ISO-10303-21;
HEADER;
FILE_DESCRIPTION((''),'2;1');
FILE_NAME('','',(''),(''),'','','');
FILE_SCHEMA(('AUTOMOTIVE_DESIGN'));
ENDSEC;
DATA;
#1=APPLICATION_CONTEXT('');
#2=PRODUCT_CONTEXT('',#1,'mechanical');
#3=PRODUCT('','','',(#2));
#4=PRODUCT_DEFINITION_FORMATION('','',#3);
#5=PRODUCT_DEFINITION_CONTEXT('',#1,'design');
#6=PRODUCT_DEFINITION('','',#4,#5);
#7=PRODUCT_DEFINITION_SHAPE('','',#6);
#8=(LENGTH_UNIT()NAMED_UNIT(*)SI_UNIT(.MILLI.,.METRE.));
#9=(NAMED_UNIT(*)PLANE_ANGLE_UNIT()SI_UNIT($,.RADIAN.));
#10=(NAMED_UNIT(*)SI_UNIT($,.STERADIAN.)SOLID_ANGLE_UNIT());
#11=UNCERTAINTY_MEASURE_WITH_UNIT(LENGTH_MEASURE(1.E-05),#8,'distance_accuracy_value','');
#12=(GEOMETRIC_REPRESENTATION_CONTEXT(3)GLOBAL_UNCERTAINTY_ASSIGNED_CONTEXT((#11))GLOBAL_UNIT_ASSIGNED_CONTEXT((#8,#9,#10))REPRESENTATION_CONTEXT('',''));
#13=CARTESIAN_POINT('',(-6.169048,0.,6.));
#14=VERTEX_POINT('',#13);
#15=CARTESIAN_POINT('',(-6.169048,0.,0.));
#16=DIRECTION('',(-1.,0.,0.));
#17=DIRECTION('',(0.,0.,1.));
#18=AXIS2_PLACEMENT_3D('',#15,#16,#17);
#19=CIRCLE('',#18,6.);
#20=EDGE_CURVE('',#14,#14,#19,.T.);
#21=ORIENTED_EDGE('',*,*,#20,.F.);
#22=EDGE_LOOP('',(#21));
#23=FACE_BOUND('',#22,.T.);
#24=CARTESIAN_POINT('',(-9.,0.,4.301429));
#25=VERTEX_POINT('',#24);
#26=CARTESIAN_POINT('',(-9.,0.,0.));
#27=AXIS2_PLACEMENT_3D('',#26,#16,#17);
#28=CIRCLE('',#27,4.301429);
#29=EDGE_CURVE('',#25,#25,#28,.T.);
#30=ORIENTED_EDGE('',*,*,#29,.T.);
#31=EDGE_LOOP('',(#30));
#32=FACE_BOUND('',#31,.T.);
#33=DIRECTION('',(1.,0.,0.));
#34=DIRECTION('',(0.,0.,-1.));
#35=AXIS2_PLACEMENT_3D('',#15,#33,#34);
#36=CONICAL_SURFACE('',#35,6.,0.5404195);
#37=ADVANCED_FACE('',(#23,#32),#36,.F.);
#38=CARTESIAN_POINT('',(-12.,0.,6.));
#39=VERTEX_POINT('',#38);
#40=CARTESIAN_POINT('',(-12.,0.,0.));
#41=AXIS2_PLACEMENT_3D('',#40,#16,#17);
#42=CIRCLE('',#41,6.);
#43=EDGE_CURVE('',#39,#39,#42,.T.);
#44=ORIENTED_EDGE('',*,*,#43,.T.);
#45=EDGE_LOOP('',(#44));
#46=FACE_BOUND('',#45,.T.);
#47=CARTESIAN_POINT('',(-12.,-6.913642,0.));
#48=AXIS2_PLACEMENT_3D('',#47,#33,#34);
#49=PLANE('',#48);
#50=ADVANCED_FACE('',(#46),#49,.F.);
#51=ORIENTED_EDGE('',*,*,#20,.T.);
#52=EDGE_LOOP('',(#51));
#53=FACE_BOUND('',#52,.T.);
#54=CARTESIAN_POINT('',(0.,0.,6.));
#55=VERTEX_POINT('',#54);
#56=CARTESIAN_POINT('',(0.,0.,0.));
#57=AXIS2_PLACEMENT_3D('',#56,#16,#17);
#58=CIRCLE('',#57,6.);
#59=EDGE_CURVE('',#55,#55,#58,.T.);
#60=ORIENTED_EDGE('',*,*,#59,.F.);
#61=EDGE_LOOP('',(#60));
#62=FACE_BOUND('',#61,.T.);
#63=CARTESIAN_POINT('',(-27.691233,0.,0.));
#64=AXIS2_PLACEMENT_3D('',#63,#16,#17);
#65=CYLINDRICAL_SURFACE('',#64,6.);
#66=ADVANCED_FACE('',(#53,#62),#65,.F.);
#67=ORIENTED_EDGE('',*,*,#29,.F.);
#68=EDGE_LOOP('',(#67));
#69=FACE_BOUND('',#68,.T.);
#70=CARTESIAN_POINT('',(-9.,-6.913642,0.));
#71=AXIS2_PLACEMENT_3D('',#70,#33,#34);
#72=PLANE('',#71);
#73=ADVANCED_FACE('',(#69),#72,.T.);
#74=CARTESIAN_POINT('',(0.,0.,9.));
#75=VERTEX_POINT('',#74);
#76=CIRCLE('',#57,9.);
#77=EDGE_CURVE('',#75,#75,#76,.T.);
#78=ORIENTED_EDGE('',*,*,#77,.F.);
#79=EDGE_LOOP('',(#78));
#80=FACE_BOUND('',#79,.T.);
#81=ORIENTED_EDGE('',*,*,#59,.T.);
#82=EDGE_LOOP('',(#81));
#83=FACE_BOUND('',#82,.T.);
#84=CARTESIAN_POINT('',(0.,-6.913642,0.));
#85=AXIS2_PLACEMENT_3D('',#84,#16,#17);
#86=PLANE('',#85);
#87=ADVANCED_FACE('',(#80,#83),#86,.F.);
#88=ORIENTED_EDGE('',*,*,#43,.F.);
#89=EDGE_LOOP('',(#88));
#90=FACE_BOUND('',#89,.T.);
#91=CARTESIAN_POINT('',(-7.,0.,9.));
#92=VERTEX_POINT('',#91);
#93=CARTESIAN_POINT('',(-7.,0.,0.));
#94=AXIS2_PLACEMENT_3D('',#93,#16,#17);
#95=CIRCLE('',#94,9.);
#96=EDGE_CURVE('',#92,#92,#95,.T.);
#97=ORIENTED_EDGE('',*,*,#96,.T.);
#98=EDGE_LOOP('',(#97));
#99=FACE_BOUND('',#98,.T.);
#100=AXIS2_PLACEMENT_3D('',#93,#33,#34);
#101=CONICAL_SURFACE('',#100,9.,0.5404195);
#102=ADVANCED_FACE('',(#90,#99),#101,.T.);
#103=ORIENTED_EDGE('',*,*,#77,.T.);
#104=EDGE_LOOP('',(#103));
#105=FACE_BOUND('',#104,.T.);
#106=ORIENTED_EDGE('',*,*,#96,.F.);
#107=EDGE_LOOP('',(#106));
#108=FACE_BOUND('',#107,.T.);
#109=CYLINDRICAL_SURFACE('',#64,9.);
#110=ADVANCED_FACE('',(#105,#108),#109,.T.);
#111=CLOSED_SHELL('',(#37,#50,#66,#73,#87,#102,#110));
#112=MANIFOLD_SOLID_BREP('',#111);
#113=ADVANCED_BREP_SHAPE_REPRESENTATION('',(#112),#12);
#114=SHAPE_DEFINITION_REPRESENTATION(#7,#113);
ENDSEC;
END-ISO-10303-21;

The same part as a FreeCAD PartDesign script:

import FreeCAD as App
import Part
import Sketcher
from FreeCAD import Vector


def add_polygon(sketch, points):
    """Adds a closed chain of lines whose ends are joined by coincident constraints."""
    first, n = sketch.GeometryCount, len(points)
    for a, b in zip(points, points[1:] + points[:1]):
        sketch.addGeometry(Part.LineSegment(App.Vector(*a, 0), App.Vector(*b, 0)), False)
    for i in range(n):
        sketch.addConstraint(Sketcher.Constraint("Coincident", first + i, 2, first + (i + 1) % n, 1))

doc = App.newDocument("Part")
params = doc.addObject("Spreadsheet::Sheet", "Params")
for row, (alias, value) in enumerate([
    ("sketch1_width", "7 mm"),
    ("sketch1_width2", "3 mm"),
    ("sketch1_height", "6 mm"),
    ("revolution_angle", "360 deg"),
], start=1):
    params.set(f"A{row}", alias)
    params.set(f"B{row}", "=" + value)
    params.setAlias(f"B{row}", alias)

body = doc.addObject("PartDesign::Body", "Body")

sketch1 = body.newObject("Sketcher::SketchObject", "Sketch")
sketch1.AttachmentSupport = (doc.getObject("XY_Plane"), [""])
sketch1.MapMode = "FlatFace"
add_polygon(sketch1, [(-9, 0), (-9, 4.3), (-6.2, 6), (0, 6), (0, 9), (-7, 9), (-12, 6), (-12, 0)])
sketch1.addConstraint(Sketcher.Constraint("Vertical", 0))
sketch1.addConstraint(Sketcher.Constraint("Horizontal", 2))
sketch1.addConstraint(Sketcher.Constraint("Vertical", 3))
sketch1.addConstraint(Sketcher.Constraint("Horizontal", 4))
sketch1.addConstraint(Sketcher.Constraint("Vertical", 6))
sketch1.addConstraint(Sketcher.Constraint("Horizontal", 7))
sketch1.addConstraint(Sketcher.Constraint("PointOnObject", 2, 2, -2))
sketch1.addConstraint(Sketcher.Constraint("PointOnObject", 6, 2, -1))
sketch1.addConstraint(Sketcher.Constraint("Parallel", 1, 5))
sketch1.addConstraint(Sketcher.Constraint("Horizontal", 2, 2, 5, 2))
sketch1.addConstraint(Sketcher.Constraint("Equal", 7, 3))
sketch1.addConstraint(Sketcher.Constraint("DistanceX", 4, 2, 4, 1, 7.0))
sketch1.addConstraint(Sketcher.Constraint("DistanceX", 7, 1, 7, 2, 3.0))
sketch1.addConstraint(Sketcher.Constraint("DistanceY", 6, 2, 6, 1, 6.0))
sketch1.addConstraint(Sketcher.Constraint("DistanceX", 0, 2, -1, 1, 9.0))
sketch1.addConstraint(Sketcher.Constraint("DistanceX", 2, 1, 2, 2, 6.169048))
sketch1.setExpression("Constraints[19]", "Params.sketch1_width")
sketch1.setExpression("Constraints[20]", "Params.sketch1_width2")
sketch1.setExpression("Constraints[21]", "Params.sketch1_height")
revolution = body.newObject("PartDesign::Revolution", "Revolution")
revolution.Profile = sketch1
revolution.ReferenceAxis = (sketch1, ["H_Axis"])
revolution.setExpression("Angle", "Params.revolution_angle")

doc.recompute()
